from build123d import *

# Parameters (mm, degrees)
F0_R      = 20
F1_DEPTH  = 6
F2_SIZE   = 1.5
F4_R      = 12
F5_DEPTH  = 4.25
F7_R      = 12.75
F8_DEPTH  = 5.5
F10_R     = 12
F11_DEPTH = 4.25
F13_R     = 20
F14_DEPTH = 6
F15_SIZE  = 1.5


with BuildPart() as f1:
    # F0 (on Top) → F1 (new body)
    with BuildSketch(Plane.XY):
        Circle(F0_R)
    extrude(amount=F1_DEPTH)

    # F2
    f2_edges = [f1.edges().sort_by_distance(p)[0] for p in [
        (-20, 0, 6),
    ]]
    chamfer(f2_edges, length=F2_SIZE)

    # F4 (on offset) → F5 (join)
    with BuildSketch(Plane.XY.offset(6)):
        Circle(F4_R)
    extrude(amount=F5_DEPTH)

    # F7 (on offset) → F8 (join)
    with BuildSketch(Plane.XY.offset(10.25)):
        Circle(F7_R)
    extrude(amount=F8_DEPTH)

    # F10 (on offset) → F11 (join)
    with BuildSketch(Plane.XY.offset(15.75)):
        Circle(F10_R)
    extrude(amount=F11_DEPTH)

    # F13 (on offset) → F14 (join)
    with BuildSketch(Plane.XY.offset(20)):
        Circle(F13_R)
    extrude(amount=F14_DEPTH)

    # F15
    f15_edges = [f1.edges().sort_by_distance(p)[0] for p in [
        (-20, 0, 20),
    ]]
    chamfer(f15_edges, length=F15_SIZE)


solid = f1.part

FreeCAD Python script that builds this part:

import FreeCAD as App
import Part
import Sketcher
from FreeCAD import Vector
Q = App.Units.Quantity


def edges_at(feature, points):
    """Names of the edges that pass closest to the given points."""
    edges = feature.Shape.Edges
    near = lambda p: min(range(len(edges)), key=lambda i: edges[i].distToShape(Part.Vertex(*p))[0])
    return sorted({f"Edge{near(p) + 1}" for p in points})

doc = App.newDocument("Part")
params = doc.addObject("Spreadsheet::Sheet", "Params")
for row, (alias, value) in enumerate([
    ("sketch1_diameter", "40 mm"),
    ("pad1_length", "6 mm"),
    ("chamfer_size", "1.5 mm"),
    ("sketch2_diameter", "24 mm"),
    ("pad2_length", "4.25 mm"),
    ("sketch3_diameter", "25.5 mm"),
    ("pad3_length", "5.5 mm"),
    ("sketch4_diameter", "24 mm"),
    ("pad4_length", "4.25 mm"),
    ("sketch5_diameter", "40 mm"),
    ("pad5_length", "6 mm"),
    ("chamfer2_size", "1.5 mm"),
], start=1):
    params.set(f"A{row}", alias)
    params.set(f"B{row}", "=" + value)
    params.setAlias(f"B{row}", alias)

body = doc.addObject("PartDesign::Body", "Body")

# Sketch on XY plane
sketch1 = body.newObject("Sketcher::SketchObject", "Sketch")
sketch1.AttachmentSupport = (doc.getObject("XY_Plane"), [""])
sketch1.MapMode = "FlatFace"
sketch1.addGeometry(Part.Circle(Vector(0, 0, 0), Vector(0, 0, 1), 20), False)
sketch1.addConstraint([
    Sketcher.Constraint("Coincident", 0, 3, -1, 1),
    Sketcher.Constraint("Diameter", 0, Q("40 mm")),
])
sketch1.setExpression("Constraints[1]", "Params.sketch1_diameter")
pad1 = body.newObject("PartDesign::Pad", "Pad")
pad1.Profile = sketch1
pad1.setExpression("Length", "Params.pad1_length")
doc.recompute()

chamfer = body.newObject("PartDesign::Chamfer", "Chamfer")
chamfer.Base = (pad1, edges_at(pad1, [(-20, 0, 6)]))
chamfer.setExpression("Size", "Params.chamfer_size")

# Sketch on XY plane
sketch2 = body.newObject("Sketcher::SketchObject", "Sketch001")
sketch2.AttachmentSupport = (doc.getObject("XY_Plane"), [""])
sketch2.MapMode = "FlatFace"
sketch2.AttachmentOffset = App.Placement(Vector(0, 0, 6), App.Rotation())
sketch2.addGeometry(Part.Circle(Vector(0, 0, 0), Vector(0, 0, 1), 12), False)
sketch2.addConstraint([
    Sketcher.Constraint("Coincident", 0, 3, -1, 1),
    Sketcher.Constraint("Diameter", 0, Q("24 mm")),
])
sketch2.setExpression("Constraints[1]", "Params.sketch2_diameter")
pad2 = body.newObject("PartDesign::Pad", "Pad001")
pad2.Profile = sketch2
pad2.setExpression("Length", "Params.pad2_length")

# Sketch on XY plane
sketch3 = body.newObject("Sketcher::SketchObject", "Sketch002")
sketch3.AttachmentSupport = (doc.getObject("XY_Plane"), [""])
sketch3.MapMode = "FlatFace"
sketch3.AttachmentOffset = App.Placement(Vector(0, 0, 10.25), App.Rotation())
sketch3.addGeometry(Part.Circle(Vector(0, 0, 0), Vector(0, 0, 1), 13), False)
sketch3.addConstraint([
    Sketcher.Constraint("Coincident", 0, 3, -1, 1),
    Sketcher.Constraint("Diameter", 0, Q("25.5 mm")),
])
sketch3.setExpression("Constraints[1]", "Params.sketch3_diameter")
pad3 = body.newObject("PartDesign::Pad", "Pad002")
pad3.Profile = sketch3
pad3.setExpression("Length", "Params.pad3_length")

# Sketch on XY plane
sketch4 = body.newObject("Sketcher::SketchObject", "Sketch003")
sketch4.AttachmentSupport = (doc.getObject("XY_Plane"), [""])
sketch4.MapMode = "FlatFace"
sketch4.AttachmentOffset = App.Placement(Vector(0, 0, 15.75), App.Rotation())
sketch4.addGeometry(Part.Circle(Vector(0, 0, 0), Vector(0, 0, 1), 12), False)
sketch4.addConstraint([
    Sketcher.Constraint("Coincident", 0, 3, -1, 1),
    Sketcher.Constraint("Diameter", 0, Q("24 mm")),
])
sketch4.setExpression("Constraints[1]", "Params.sketch4_diameter")
pad4 = body.newObject("PartDesign::Pad", "Pad003")
pad4.Profile = sketch4
pad4.setExpression("Length", "Params.pad4_length")

# Sketch on XY plane
sketch5 = body.newObject("Sketcher::SketchObject", "Sketch004")
sketch5.AttachmentSupport = (doc.getObject("XY_Plane"), [""])
sketch5.MapMode = "FlatFace"
sketch5.AttachmentOffset = App.Placement(Vector(0, 0, 20), App.Rotation())
sketch5.addGeometry(Part.Circle(Vector(0, 0, 0), Vector(0, 0, 1), 20), False)
sketch5.addConstraint([
    Sketcher.Constraint("Coincident", 0, 3, -1, 1),
    Sketcher.Constraint("Diameter", 0, Q("40 mm")),
])
sketch5.setExpression("Constraints[1]", "Params.sketch5_diameter")
pad5 = body.newObject("PartDesign::Pad", "Pad004")
pad5.Profile = sketch5
pad5.setExpression("Length", "Params.pad5_length")
doc.recompute()

chamfer2 = body.newObject("PartDesign::Chamfer", "Chamfer001")
chamfer2.Base = (pad5, edges_at(pad5, [(-20, 0, 20)]))
chamfer2.setExpression("Size", "Params.chamfer2_size")

doc.recompute()
